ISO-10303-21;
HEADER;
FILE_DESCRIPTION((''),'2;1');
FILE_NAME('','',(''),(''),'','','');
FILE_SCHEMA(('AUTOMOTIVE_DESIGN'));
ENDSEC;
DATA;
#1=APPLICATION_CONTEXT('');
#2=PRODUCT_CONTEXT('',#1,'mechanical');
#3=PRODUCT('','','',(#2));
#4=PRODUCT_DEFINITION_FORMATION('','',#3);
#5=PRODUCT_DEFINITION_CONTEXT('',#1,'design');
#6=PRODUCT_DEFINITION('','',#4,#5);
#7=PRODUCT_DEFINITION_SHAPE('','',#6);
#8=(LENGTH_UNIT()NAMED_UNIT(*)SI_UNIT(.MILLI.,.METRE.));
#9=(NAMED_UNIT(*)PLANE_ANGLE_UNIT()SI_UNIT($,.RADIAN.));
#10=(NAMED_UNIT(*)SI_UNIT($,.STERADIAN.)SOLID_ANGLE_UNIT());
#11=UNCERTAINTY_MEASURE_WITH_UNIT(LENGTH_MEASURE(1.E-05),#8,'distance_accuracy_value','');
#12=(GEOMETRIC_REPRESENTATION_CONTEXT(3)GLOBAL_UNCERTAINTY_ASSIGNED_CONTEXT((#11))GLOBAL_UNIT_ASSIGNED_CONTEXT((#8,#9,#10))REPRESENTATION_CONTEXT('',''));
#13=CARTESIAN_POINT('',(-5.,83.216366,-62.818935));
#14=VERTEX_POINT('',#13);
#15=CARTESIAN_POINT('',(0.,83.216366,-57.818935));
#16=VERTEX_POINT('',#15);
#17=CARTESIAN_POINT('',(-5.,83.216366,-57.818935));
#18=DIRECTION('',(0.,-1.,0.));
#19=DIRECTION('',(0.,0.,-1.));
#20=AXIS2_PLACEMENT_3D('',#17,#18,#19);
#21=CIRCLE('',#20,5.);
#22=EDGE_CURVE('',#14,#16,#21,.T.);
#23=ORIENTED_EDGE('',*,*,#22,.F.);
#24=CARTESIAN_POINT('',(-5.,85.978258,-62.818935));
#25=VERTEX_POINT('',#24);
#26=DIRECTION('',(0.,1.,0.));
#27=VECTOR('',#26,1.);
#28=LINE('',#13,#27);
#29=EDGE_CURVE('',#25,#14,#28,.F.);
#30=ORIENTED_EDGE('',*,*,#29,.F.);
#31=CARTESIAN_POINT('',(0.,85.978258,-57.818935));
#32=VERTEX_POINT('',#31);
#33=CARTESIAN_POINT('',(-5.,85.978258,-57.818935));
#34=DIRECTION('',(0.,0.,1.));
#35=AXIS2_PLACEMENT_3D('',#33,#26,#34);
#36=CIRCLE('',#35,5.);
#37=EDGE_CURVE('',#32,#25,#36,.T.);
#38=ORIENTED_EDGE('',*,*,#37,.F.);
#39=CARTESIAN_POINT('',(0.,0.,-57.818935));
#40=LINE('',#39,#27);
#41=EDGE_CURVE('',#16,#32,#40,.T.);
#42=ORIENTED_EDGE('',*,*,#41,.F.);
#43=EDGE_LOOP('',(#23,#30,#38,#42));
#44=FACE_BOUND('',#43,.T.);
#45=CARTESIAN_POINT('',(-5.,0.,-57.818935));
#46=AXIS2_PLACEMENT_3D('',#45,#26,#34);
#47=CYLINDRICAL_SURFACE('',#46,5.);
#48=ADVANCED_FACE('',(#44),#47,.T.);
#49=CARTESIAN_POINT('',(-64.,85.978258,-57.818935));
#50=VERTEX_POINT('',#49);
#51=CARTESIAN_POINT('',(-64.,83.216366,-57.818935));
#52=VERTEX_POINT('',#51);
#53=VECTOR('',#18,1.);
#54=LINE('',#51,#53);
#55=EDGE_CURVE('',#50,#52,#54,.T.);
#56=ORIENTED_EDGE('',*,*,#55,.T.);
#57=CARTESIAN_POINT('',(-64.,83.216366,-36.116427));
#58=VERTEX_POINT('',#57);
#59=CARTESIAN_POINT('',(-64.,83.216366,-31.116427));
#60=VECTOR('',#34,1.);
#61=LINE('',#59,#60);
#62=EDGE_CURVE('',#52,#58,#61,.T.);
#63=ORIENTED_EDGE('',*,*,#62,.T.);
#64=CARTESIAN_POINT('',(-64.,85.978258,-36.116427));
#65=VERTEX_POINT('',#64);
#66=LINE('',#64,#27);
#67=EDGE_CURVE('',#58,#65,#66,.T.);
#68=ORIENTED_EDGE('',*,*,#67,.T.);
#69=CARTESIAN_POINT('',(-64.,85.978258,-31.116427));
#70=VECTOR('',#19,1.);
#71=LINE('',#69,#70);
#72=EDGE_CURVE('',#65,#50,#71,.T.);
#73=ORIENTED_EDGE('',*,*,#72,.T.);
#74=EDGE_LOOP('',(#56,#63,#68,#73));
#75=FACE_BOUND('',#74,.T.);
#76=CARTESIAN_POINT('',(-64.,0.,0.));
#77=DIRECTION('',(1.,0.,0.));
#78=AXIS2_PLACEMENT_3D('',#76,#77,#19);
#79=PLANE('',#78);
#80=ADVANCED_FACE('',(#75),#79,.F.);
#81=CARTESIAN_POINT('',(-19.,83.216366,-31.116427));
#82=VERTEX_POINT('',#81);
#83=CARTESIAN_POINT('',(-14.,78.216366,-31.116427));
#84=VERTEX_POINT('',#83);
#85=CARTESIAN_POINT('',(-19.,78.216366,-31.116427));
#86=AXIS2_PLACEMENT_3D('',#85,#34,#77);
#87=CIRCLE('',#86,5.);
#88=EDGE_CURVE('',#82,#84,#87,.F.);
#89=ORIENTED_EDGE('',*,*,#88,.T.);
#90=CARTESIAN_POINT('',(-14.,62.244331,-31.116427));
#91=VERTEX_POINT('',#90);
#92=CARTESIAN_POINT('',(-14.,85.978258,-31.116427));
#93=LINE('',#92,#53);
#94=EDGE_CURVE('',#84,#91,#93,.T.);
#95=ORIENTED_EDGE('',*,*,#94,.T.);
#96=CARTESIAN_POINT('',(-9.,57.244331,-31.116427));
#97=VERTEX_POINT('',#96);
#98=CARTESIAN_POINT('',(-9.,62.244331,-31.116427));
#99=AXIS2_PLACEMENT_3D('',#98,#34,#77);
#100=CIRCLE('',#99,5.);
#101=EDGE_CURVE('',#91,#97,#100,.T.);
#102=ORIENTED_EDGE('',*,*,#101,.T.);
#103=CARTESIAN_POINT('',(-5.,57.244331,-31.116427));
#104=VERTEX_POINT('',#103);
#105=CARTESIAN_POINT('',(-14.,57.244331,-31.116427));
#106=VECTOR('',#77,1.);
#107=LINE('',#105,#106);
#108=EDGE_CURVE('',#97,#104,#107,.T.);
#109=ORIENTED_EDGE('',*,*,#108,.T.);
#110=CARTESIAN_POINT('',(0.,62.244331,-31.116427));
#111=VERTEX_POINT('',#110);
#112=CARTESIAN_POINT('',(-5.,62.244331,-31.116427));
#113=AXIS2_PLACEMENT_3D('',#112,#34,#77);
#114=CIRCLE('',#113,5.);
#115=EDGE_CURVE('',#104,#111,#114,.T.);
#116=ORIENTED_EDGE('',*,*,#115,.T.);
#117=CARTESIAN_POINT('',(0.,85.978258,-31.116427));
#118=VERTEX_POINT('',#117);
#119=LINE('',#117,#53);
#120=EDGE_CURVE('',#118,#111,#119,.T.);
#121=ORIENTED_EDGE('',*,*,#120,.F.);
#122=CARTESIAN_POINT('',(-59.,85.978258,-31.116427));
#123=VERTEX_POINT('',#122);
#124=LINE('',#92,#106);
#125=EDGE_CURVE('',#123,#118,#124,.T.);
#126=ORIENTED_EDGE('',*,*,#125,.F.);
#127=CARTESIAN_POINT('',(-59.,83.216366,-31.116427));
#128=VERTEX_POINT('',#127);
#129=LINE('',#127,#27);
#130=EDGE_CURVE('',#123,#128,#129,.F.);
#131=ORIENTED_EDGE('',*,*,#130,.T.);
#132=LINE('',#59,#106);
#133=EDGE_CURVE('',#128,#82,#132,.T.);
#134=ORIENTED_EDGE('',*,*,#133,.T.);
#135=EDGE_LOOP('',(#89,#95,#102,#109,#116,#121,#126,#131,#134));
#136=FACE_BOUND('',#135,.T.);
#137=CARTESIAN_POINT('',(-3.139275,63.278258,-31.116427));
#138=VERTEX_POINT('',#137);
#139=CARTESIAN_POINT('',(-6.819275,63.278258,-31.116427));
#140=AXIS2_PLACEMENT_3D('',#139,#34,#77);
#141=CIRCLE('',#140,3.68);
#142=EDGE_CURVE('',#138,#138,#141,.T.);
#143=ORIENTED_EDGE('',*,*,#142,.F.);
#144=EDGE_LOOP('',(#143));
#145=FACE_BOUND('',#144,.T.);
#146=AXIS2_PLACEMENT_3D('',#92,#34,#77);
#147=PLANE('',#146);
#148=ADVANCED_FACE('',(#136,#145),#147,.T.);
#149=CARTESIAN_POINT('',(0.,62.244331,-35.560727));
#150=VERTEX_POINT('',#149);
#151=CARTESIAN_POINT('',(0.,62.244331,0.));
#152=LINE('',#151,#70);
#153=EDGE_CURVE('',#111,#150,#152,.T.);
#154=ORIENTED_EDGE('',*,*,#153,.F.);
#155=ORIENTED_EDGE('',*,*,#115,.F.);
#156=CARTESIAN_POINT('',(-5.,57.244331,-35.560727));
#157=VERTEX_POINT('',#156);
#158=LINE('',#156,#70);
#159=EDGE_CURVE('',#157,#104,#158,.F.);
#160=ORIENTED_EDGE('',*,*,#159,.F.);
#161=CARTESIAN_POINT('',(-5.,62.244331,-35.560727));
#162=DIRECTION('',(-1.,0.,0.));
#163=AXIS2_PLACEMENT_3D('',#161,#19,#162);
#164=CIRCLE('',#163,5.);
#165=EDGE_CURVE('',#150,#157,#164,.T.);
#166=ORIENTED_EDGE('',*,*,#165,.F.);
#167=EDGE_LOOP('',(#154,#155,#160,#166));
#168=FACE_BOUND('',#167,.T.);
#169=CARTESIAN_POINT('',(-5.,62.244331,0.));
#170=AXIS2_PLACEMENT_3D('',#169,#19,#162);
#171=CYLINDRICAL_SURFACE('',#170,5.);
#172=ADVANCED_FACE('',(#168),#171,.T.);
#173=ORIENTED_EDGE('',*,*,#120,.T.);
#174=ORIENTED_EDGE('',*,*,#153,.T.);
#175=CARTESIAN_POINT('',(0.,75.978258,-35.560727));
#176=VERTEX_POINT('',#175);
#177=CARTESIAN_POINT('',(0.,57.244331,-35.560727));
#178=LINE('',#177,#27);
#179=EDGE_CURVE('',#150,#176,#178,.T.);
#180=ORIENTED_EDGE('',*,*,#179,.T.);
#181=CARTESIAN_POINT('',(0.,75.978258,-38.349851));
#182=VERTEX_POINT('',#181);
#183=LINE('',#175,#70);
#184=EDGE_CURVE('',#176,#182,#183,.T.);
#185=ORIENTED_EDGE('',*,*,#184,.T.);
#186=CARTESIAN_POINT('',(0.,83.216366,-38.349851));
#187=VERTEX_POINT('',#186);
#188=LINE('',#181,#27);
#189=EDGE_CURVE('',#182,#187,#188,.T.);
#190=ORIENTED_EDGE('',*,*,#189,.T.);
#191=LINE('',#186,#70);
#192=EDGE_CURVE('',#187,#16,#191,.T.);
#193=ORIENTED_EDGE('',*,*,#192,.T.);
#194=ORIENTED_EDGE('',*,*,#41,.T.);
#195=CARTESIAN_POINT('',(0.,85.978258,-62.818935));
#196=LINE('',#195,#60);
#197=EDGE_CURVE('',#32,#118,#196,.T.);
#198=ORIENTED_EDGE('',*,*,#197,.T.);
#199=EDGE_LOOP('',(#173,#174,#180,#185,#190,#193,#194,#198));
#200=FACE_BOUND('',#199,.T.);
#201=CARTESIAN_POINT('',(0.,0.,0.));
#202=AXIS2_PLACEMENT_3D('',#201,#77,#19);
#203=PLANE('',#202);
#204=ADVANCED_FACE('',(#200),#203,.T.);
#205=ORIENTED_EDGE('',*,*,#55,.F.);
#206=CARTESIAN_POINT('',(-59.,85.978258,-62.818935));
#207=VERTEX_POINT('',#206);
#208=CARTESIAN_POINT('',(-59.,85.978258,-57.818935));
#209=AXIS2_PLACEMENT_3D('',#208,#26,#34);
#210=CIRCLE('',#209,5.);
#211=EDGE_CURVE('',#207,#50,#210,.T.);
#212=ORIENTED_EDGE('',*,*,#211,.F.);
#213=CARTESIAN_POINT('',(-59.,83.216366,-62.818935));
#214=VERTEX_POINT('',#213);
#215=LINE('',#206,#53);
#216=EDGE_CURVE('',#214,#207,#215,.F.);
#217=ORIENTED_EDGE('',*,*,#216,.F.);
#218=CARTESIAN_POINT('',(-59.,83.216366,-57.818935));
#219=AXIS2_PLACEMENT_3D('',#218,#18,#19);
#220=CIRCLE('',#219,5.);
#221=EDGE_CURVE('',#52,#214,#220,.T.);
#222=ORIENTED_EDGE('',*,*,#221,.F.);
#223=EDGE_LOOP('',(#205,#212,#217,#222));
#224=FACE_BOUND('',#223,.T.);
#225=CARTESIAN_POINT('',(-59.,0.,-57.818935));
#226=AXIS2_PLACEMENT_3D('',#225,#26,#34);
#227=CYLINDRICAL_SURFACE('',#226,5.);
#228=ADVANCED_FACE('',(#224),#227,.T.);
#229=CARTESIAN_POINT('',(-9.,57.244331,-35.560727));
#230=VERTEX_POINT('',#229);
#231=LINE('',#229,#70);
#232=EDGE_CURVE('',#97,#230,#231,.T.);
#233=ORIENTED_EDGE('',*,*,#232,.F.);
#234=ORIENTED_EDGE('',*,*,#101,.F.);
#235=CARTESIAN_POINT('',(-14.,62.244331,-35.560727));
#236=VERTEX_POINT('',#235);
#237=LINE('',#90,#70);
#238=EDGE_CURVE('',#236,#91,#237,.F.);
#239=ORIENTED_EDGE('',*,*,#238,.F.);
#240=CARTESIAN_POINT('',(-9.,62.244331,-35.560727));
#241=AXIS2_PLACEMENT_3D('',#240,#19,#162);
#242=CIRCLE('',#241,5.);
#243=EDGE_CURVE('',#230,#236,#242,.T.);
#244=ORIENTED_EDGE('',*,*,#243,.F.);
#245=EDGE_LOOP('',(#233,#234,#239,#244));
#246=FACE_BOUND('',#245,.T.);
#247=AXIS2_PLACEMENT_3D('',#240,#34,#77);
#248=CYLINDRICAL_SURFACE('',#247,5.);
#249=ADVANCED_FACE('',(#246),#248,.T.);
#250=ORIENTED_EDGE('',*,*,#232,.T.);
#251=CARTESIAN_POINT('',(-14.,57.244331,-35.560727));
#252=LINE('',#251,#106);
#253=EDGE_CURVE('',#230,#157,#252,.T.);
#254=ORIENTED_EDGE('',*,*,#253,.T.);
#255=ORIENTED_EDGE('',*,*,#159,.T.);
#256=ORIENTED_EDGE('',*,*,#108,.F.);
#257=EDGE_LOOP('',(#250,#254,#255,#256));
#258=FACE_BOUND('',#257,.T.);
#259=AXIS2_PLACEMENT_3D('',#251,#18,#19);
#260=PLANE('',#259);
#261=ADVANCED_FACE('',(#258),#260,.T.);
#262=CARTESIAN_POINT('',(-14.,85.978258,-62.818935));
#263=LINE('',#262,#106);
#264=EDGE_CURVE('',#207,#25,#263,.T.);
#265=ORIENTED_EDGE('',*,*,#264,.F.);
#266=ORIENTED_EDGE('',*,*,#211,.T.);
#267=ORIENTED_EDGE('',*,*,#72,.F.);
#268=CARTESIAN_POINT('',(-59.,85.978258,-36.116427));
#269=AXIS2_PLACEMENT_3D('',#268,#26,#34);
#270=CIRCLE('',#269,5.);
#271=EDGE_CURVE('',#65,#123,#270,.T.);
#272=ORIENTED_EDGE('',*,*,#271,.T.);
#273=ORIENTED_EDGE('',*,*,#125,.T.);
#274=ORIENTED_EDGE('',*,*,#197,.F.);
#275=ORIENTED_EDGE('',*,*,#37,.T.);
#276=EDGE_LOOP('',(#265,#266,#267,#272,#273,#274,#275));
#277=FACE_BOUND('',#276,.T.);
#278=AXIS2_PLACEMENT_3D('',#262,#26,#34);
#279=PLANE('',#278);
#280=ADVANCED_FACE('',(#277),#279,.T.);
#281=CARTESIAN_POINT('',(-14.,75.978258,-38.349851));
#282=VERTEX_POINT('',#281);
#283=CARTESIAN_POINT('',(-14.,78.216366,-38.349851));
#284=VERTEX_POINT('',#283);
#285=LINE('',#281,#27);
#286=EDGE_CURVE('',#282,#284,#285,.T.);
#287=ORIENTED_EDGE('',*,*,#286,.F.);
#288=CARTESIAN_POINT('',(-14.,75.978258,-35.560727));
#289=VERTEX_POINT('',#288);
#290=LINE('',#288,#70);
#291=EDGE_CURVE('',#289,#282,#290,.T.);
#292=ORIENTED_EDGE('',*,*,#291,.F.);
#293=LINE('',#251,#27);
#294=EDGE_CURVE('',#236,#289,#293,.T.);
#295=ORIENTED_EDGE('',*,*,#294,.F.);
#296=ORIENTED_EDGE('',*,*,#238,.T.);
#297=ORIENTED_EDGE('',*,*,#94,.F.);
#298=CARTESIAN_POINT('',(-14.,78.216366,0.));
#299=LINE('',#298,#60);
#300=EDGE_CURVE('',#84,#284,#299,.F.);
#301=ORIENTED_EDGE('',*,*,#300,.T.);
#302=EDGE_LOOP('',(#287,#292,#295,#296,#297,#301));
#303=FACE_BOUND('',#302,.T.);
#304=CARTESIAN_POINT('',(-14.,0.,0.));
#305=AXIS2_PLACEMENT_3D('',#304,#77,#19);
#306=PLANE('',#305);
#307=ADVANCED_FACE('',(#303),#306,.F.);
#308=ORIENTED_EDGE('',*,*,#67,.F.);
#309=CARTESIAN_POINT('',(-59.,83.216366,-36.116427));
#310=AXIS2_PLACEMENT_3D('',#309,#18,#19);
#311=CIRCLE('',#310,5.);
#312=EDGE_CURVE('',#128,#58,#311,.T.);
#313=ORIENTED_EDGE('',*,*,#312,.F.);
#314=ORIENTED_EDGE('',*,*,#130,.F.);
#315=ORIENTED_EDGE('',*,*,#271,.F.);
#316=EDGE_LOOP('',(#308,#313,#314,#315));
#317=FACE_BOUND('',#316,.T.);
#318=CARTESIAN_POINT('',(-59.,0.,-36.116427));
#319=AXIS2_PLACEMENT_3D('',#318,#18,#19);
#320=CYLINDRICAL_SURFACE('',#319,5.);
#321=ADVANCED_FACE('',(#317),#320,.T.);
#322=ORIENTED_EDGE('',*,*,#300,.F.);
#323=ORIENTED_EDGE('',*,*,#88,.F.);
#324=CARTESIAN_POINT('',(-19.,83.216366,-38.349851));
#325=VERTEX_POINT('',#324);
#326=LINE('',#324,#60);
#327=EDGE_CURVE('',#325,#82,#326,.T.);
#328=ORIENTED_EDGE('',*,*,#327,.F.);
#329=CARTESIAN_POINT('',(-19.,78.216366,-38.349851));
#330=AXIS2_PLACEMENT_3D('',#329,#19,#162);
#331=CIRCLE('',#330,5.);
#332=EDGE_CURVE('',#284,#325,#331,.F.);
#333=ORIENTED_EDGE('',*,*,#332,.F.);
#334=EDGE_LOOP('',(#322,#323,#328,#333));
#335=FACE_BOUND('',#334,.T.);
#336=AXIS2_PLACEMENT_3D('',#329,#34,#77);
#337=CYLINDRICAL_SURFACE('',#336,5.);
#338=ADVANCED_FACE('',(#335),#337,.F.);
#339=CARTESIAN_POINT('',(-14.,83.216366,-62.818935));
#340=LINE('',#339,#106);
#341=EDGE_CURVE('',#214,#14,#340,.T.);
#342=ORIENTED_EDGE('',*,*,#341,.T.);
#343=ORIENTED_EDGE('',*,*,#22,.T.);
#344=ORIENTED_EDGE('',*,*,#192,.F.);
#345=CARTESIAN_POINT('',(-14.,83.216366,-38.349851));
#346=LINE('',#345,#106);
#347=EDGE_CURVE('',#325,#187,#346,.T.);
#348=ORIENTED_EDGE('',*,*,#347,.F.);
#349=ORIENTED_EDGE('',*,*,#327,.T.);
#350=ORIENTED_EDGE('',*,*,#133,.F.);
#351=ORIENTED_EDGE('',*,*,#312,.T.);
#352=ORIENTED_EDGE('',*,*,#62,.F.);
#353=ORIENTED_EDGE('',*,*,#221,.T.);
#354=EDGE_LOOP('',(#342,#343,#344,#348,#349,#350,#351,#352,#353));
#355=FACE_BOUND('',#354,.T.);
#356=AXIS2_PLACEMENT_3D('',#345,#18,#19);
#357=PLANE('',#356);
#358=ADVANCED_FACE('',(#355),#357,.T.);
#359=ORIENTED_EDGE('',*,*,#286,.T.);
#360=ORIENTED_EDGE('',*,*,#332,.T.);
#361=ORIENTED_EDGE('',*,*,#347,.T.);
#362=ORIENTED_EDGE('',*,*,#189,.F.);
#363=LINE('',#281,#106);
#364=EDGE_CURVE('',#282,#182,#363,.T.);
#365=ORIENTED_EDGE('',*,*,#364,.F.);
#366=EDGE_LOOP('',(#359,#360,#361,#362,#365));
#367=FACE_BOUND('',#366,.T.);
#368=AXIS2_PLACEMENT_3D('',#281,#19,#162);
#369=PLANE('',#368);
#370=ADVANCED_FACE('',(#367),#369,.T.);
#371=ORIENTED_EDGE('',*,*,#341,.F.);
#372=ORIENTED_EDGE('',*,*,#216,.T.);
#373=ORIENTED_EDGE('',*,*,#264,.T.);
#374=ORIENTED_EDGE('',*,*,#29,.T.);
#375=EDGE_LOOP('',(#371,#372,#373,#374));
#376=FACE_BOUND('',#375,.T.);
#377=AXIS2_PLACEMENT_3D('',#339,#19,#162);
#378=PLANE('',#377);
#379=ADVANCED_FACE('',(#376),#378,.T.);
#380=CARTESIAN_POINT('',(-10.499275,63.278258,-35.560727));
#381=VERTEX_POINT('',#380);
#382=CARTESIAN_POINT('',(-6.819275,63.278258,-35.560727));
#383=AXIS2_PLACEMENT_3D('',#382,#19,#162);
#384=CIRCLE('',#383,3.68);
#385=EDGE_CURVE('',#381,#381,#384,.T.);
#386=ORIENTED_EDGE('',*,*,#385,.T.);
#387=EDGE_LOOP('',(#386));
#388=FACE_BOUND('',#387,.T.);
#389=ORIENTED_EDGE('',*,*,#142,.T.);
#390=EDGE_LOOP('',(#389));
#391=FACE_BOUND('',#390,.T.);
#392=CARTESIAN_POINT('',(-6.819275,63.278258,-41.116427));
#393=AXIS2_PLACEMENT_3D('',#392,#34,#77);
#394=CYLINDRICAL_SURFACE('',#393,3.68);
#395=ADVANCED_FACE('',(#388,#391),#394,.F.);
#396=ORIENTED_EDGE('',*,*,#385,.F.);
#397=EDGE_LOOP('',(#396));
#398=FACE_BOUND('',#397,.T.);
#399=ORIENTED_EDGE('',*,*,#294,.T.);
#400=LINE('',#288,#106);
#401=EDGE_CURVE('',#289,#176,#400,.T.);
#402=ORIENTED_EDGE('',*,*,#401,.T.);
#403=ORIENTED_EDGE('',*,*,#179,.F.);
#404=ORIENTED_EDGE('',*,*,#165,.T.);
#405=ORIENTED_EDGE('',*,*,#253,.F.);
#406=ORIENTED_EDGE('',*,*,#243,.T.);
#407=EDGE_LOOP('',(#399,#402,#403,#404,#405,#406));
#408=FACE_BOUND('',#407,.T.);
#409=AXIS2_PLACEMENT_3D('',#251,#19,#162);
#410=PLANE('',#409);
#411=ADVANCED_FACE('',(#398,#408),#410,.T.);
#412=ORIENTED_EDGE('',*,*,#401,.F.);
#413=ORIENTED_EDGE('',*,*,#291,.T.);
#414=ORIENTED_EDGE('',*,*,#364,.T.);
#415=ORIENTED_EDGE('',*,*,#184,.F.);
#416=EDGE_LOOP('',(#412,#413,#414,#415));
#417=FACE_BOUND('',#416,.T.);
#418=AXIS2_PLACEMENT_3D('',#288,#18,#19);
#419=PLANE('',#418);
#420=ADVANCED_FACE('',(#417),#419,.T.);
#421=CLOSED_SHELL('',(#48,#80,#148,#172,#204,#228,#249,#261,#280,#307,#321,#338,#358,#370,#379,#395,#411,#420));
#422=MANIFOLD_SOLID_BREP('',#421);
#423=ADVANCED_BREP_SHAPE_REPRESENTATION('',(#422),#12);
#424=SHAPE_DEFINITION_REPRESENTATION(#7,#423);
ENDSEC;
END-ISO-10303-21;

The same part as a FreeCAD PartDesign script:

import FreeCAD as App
import Part
import Sketcher

V = App.Vector
Q = App.Units.Quantity


def edges_at(feature, points):
    """Names of the edges that pass closest to the given points."""
    edges = feature.Shape.Edges
    near = lambda p: min(range(len(edges)), key=lambda i: edges[i].distToShape(Part.Vertex(*p))[0])
    return sorted({f"Edge{near(p) + 1}" for p in points})

doc = App.newDocument("Part")
params = doc.addObject("Spreadsheet::Sheet", "Params")
for row, (alias, value) in enumerate([
    ("pad1_length", "14 mm"),
    ("sketch2_diameter", "7.36 mm"),
    ("pocket1_length", "10 mm"),
    ("pad2_length", "50 mm"),
    ("fillet_radius", "5 mm"),
], start=1):
    params.set(f"A{row}", alias)
    params.set(f"B{row}", "=" + value)
    params.setAlias(f"B{row}", alias)

body = doc.addObject("PartDesign::Body", "Body")

# Sketch on YZ plane
sketch1 = body.newObject("Sketcher::SketchObject", "Sketch")
sketch1.AttachmentSupport = (doc.getObject("YZ_Plane"), [""])
sketch1.MapMode = "FlatFace"
sketch1.addGeometry(Part.LineSegment(V(57.244331, -35.560727, 0), V(75.978258, -35.560727, 0)), False)
sketch1.addGeometry(Part.LineSegment(V(75.978258, -35.560727, 0), V(75.978258, -38.349851, 0)), False)
sketch1.addGeometry(Part.LineSegment(V(75.978258, -38.349851, 0), V(83.216366, -38.349851, 0)), False)
sketch1.addGeometry(Part.LineSegment(V(83.216366, -38.349851, 0), V(83.216366, -62.818935, 0)), False)
sketch1.addGeometry(Part.LineSegment(V(83.216366, -62.818935, 0), V(85.978258, -62.818935, 0)), False)
sketch1.addGeometry(Part.LineSegment(V(85.978258, -62.818935, 0), V(85.978258, -31.116427, 0)), False)
sketch1.addGeometry(Part.LineSegment(V(85.978258, -31.116427, 0), V(57.244331, -31.116427, 0)), False)
sketch1.addGeometry(Part.LineSegment(V(57.244331, -31.116427, 0), V(57.244331, -35.560727, 0)), False)
sketch1.addConstraint(Sketcher.Constraint("Coincident", 0, 2, 1, 1))
sketch1.addConstraint(Sketcher.Constraint("Coincident", 1, 2, 2, 1))
sketch1.addConstraint(Sketcher.Constraint("Coincident", 2, 2, 3, 1))
sketch1.addConstraint(Sketcher.Constraint("Coincident", 3, 2, 4, 1))
sketch1.addConstraint(Sketcher.Constraint("Coincident", 4, 2, 5, 1))
sketch1.addConstraint(Sketcher.Constraint("Coincident", 5, 2, 6, 1))
sketch1.addConstraint(Sketcher.Constraint("Coincident", 6, 2, 7, 1))
sketch1.addConstraint(Sketcher.Constraint("Coincident", 7, 2, 0, 1))
sketch1.addConstraint(Sketcher.Constraint("Horizontal", 0))
sketch1.addConstraint(Sketcher.Constraint("Vertical", 1))
sketch1.addConstraint(Sketcher.Constraint("Horizontal", 2))
sketch1.addConstraint(Sketcher.Constraint("Vertical", 3))
sketch1.addConstraint(Sketcher.Constraint("Horizontal", 4))
sketch1.addConstraint(Sketcher.Constraint("Vertical", 5))
sketch1.addConstraint(Sketcher.Constraint("Horizontal", 6))
sketch1.addConstraint(Sketcher.Constraint("Vertical", 7))
sketch1.addConstraint(Sketcher.Constraint("DistanceX", 1, 2, 4, 2, Q("10 mm")))
sketch1.addConstraint(Sketcher.Constraint("DistanceY", 7, 2, 7, 1, Q("4.4443 mm")))
sketch1.addConstraint(Sketcher.Constraint("DistanceX", 2, 1, 2, 2, Q("7.238108 mm")))
sketch1.addConstraint(Sketcher.Constraint("DistanceX", 0, 1, 0, 2, Q("18.733927 mm")))
sketch1.addConstraint(Sketcher.Constraint("DistanceY", 1, 2, 1, 1, Q("2.789124 mm")))
sketch1.addConstraint(Sketcher.Constraint("DistanceY", 3, 2, 3, 1, Q("24.469083 mm")))
sketch1.addConstraint(Sketcher.Constraint("DistanceY", 1, 2, -1, 1, Q("38.349851 mm")))
sketch1.addConstraint(Sketcher.Constraint("DistanceX", -1, 1, 6, 2, Q("57.244331 mm")))
pad1 = body.newObject("PartDesign::Pad", "Pad")
pad1.Profile = sketch1
pad1.setExpression("Length", "Params.pad1_length")
pad1.Reversed = True

# Sketch on XY plane
sketch2 = body.newObject("Sketcher::SketchObject", "Sketch001")
sketch2.AttachmentSupport = (doc.getObject("XY_Plane"), [""])
sketch2.MapMode = "FlatFace"
sketch2.AttachmentOffset = App.Placement(V(0, 0, -31.116427), App.Rotation())
sketch2.addGeometry(Part.Circle(V(-6.819275, 63.278258, 0), V(0, 0, 1), 3.68), False)
sketch2.addConstraint(Sketcher.Constraint("Diameter", 0, Q("7.36 mm")))
sketch2.addConstraint(Sketcher.Constraint("DistanceX", 0, 3, -1, 1, Q("6.819275 mm")))
sketch2.addConstraint(Sketcher.Constraint("DistanceY", -1, 1, 0, 3, Q("63.278258 mm")))
sketch2.setExpression("Constraints[0]", "Params.sketch2_diameter")
pocket1 = body.newObject("PartDesign::Pocket", "Pocket")
pocket1.Profile = sketch2
pocket1.setExpression("Length", "Params.pocket1_length")

# Sketch on YZ plane
sketch3 = body.newObject("Sketcher::SketchObject", "Sketch002")
sketch3.AttachmentSupport = (doc.getObject("YZ_Plane"), [""])
sketch3.MapMode = "FlatFace"
sketch3.AttachmentOffset = App.Placement(V(0, 0, -14), App.Rotation())
sketch3.addGeometry(Part.LineSegment(V(85.978258, -62.818935, 0), V(83.216366, -62.818935, 0)), False)
sketch3.addGeometry(Part.LineSegment(V(83.216366, -62.818935, 0), V(83.216366, -31.116427, 0)), False)
sketch3.addGeometry(Part.LineSegment(V(83.216366, -31.116427, 0), V(85.978258, -31.116427, 0)), False)
sketch3.addGeometry(Part.LineSegment(V(85.978258, -31.116427, 0), V(85.978258, -62.818935, 0)), False)
sketch3.addConstraint(Sketcher.Constraint("Coincident", 0, 2, 1, 1))
sketch3.addConstraint(Sketcher.Constraint("Coincident", 1, 2, 2, 1))
sketch3.addConstraint(Sketcher.Constraint("Coincident", 2, 2, 3, 1))
sketch3.addConstraint(Sketcher.Constraint("Coincident", 3, 2, 0, 1))
sketch3.addConstraint(Sketcher.Constraint("Horizontal", 0))
sketch3.addConstraint(Sketcher.Constraint("Vertical", 1))
sketch3.addConstraint(Sketcher.Constraint("Horizontal", 2))
sketch3.addConstraint(Sketcher.Constraint("Vertical", 3))
sketch3.addConstraint(Sketcher.Constraint("DistanceX", 0, 2, 0, 1, Q("2.761892 mm")))
sketch3.addConstraint(Sketcher.Constraint("DistanceY", 1, 1, 1, 2, Q("31.702508 mm")))
sketch3.addConstraint(Sketcher.Constraint("DistanceX", -1, 1, 0, 2, Q("83.216366 mm")))
sketch3.addConstraint(Sketcher.Constraint("DistanceY", 0, 2, -1, 1, Q("62.818935 mm")))
pad2 = body.newObject("PartDesign::Pad", "Pad001")
pad2.Profile = sketch3
pad2.setExpression("Length", "Params.pad2_length")
pad2.Reversed = True
doc.recompute()

fillet = body.newObject("PartDesign::Fillet", "Fillet")
fillet.Base = (pad2, edges_at(pad2, [
    (-64, 84.597, -62.819),
    (0, 84.597, -62.819),
    (0, 57.244, -33.339),
    (-14, 57.244, -33.339),
    (-64, 84.597, -31.116),
    (-14, 83.216, -34.733),
]))
fillet.setExpression("Radius", "Params.fillet_radius")

doc.recompute()
